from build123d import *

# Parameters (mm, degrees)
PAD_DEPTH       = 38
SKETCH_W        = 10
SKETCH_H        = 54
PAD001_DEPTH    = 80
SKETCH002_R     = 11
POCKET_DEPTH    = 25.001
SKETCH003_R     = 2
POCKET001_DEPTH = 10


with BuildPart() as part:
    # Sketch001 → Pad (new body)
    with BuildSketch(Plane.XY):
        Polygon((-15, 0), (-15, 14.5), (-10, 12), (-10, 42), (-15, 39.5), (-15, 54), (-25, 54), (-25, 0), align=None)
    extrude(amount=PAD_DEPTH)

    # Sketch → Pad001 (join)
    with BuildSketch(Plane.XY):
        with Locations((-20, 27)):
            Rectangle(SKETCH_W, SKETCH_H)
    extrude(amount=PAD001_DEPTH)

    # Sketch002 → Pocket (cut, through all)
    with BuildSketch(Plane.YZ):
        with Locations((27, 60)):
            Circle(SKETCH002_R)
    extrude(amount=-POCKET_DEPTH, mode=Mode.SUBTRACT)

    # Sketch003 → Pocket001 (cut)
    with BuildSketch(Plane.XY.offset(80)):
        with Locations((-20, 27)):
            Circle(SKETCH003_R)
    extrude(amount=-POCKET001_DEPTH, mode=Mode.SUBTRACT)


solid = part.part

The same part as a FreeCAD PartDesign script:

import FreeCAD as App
import Part
import Sketcher
from FreeCAD import Vector


def add_polygon(sketch, points):
    """Adds a closed chain of lines whose ends are joined by coincident constraints."""
    first, n = sketch.GeometryCount, len(points)
    for a, b in zip(points, points[1:] + points[:1]):
        sketch.addGeometry(Part.LineSegment(App.Vector(*a, 0), App.Vector(*b, 0)), False)
    for i in range(n):
        sketch.addConstraint(Sketcher.Constraint("Coincident", first + i, 2, first + (i + 1) % n, 1))

doc = App.newDocument("Part")
body = doc.addObject("PartDesign::Body", "Body")

sketch1 = body.newObject("Sketcher::SketchObject", "Sketch")
sketch1.AttachmentSupport = (doc.getObject("XY_Plane"), [""])
sketch1.MapMode = "FlatFace"
add_polygon(sketch1, [(-15, 0), (-15, 14), (-10, 12), (-10, 42), (-15, 40), (-15, 54), (-25, 54), (-25, 0)])
sketch1.addConstraint([
    Sketcher.Constraint("Vertical", 0),
    Sketcher.Constraint("Vertical", 2),
    Sketcher.Constraint("Vertical", 4),
    Sketcher.Constraint("Horizontal", 5),
    Sketcher.Constraint("Vertical", 6),
    Sketcher.Constraint("Horizontal", 7),
    Sketcher.Constraint("PointOnObject", 6, 2, -1),
    Sketcher.Constraint("Vertical", 0, 2, 3, 2),
    Sketcher.Constraint("Equal", 0, 4),
    Sketcher.Constraint("Equal", 1, 3),
    Sketcher.Constraint("DistanceX", 5, 2, 5, 1, 10.0),
    Sketcher.Constraint("DistanceY", 2, 1, 2, 2, 30.0),
    Sketcher.Constraint("DistanceY", 6, 2, 6, 1, 54.0),
    Sketcher.Constraint("DistanceY", 0, 1, 0, 2, 14.5),
    Sketcher.Constraint("DistanceX", 0, 2, -1, 1, 15.0),
    Sketcher.Constraint("DistanceX", 1, 2, -1, 1, 10.0),
])
pad1 = body.newObject("PartDesign::Pad", "Pad")
pad1.Profile = sketch1
pad1.Length = 38

sketch2 = body.newObject("Sketcher::SketchObject", "Sketch001")
sketch2.AttachmentSupport = (doc.getObject("XY_Plane"), [""])
sketch2.MapMode = "FlatFace"
add_polygon(sketch2, [(-25, 54), (-25, 0), (-15, 0), (-15, 54)])
sketch2.addConstraint([
    Sketcher.Constraint("Vertical", 0),
    Sketcher.Constraint("Horizontal", 1),
    Sketcher.Constraint("Vertical", 2),
    Sketcher.Constraint("Horizontal", 3),
    Sketcher.Constraint("PointOnObject", 0, 2, -1),
    Sketcher.Constraint("DistanceX", 1, 1, 1, 2, 10.0),
    Sketcher.Constraint("DistanceY", 0, 2, 0, 1, 54.0),
    Sketcher.Constraint("DistanceX", 0, 2, -1, 1, 25.0),
])
pad2 = body.newObject("PartDesign::Pad", "Pad001")
pad2.Profile = sketch2
pad2.Length = 80

sketch3 = body.newObject("Sketcher::SketchObject", "Sketch002")
sketch3.AttachmentSupport = (doc.getObject("YZ_Plane"), [""])
sketch3.MapMode = "FlatFace"
sketch3.addGeometry(Part.Circle(Vector(27, 60, 0), Vector(0, 0, 1), 11), False)
sketch3.addConstraint([
    Sketcher.Constraint("Diameter", 0, 22.0),
    Sketcher.Constraint("DistanceX", -1, 1, 0, 3, 27.0),
    Sketcher.Constraint("DistanceY", -1, 1, 0, 3, 60.0),
])
pocket1 = body.newObject("PartDesign::Pocket", "Pocket")
pocket1.Profile = sketch3
pocket1.Type = "ThroughAll"

sketch4 = body.newObject("Sketcher::SketchObject", "Sketch003")
sketch4.AttachmentSupport = (doc.getObject("XY_Plane"), [""])
sketch4.MapMode = "FlatFace"
sketch4.AttachmentOffset = App.Placement(Vector(0, 0, 80), App.Rotation())
sketch4.addGeometry(Part.Circle(Vector(-20, 27, 0), Vector(0, 0, 1), 2), False)
sketch4.addConstraint([
    Sketcher.Constraint("Diameter", 0, 4.0),
    Sketcher.Constraint("DistanceX", 0, 3, -1, 1, 20.0),
    Sketcher.Constraint("DistanceY", -1, 1, 0, 3, 27.0),
])
pocket2 = body.newObject("PartDesign::Pocket", "Pocket001")
pocket2.Profile = sketch4
pocket2.Length = 10

doc.recompute()
